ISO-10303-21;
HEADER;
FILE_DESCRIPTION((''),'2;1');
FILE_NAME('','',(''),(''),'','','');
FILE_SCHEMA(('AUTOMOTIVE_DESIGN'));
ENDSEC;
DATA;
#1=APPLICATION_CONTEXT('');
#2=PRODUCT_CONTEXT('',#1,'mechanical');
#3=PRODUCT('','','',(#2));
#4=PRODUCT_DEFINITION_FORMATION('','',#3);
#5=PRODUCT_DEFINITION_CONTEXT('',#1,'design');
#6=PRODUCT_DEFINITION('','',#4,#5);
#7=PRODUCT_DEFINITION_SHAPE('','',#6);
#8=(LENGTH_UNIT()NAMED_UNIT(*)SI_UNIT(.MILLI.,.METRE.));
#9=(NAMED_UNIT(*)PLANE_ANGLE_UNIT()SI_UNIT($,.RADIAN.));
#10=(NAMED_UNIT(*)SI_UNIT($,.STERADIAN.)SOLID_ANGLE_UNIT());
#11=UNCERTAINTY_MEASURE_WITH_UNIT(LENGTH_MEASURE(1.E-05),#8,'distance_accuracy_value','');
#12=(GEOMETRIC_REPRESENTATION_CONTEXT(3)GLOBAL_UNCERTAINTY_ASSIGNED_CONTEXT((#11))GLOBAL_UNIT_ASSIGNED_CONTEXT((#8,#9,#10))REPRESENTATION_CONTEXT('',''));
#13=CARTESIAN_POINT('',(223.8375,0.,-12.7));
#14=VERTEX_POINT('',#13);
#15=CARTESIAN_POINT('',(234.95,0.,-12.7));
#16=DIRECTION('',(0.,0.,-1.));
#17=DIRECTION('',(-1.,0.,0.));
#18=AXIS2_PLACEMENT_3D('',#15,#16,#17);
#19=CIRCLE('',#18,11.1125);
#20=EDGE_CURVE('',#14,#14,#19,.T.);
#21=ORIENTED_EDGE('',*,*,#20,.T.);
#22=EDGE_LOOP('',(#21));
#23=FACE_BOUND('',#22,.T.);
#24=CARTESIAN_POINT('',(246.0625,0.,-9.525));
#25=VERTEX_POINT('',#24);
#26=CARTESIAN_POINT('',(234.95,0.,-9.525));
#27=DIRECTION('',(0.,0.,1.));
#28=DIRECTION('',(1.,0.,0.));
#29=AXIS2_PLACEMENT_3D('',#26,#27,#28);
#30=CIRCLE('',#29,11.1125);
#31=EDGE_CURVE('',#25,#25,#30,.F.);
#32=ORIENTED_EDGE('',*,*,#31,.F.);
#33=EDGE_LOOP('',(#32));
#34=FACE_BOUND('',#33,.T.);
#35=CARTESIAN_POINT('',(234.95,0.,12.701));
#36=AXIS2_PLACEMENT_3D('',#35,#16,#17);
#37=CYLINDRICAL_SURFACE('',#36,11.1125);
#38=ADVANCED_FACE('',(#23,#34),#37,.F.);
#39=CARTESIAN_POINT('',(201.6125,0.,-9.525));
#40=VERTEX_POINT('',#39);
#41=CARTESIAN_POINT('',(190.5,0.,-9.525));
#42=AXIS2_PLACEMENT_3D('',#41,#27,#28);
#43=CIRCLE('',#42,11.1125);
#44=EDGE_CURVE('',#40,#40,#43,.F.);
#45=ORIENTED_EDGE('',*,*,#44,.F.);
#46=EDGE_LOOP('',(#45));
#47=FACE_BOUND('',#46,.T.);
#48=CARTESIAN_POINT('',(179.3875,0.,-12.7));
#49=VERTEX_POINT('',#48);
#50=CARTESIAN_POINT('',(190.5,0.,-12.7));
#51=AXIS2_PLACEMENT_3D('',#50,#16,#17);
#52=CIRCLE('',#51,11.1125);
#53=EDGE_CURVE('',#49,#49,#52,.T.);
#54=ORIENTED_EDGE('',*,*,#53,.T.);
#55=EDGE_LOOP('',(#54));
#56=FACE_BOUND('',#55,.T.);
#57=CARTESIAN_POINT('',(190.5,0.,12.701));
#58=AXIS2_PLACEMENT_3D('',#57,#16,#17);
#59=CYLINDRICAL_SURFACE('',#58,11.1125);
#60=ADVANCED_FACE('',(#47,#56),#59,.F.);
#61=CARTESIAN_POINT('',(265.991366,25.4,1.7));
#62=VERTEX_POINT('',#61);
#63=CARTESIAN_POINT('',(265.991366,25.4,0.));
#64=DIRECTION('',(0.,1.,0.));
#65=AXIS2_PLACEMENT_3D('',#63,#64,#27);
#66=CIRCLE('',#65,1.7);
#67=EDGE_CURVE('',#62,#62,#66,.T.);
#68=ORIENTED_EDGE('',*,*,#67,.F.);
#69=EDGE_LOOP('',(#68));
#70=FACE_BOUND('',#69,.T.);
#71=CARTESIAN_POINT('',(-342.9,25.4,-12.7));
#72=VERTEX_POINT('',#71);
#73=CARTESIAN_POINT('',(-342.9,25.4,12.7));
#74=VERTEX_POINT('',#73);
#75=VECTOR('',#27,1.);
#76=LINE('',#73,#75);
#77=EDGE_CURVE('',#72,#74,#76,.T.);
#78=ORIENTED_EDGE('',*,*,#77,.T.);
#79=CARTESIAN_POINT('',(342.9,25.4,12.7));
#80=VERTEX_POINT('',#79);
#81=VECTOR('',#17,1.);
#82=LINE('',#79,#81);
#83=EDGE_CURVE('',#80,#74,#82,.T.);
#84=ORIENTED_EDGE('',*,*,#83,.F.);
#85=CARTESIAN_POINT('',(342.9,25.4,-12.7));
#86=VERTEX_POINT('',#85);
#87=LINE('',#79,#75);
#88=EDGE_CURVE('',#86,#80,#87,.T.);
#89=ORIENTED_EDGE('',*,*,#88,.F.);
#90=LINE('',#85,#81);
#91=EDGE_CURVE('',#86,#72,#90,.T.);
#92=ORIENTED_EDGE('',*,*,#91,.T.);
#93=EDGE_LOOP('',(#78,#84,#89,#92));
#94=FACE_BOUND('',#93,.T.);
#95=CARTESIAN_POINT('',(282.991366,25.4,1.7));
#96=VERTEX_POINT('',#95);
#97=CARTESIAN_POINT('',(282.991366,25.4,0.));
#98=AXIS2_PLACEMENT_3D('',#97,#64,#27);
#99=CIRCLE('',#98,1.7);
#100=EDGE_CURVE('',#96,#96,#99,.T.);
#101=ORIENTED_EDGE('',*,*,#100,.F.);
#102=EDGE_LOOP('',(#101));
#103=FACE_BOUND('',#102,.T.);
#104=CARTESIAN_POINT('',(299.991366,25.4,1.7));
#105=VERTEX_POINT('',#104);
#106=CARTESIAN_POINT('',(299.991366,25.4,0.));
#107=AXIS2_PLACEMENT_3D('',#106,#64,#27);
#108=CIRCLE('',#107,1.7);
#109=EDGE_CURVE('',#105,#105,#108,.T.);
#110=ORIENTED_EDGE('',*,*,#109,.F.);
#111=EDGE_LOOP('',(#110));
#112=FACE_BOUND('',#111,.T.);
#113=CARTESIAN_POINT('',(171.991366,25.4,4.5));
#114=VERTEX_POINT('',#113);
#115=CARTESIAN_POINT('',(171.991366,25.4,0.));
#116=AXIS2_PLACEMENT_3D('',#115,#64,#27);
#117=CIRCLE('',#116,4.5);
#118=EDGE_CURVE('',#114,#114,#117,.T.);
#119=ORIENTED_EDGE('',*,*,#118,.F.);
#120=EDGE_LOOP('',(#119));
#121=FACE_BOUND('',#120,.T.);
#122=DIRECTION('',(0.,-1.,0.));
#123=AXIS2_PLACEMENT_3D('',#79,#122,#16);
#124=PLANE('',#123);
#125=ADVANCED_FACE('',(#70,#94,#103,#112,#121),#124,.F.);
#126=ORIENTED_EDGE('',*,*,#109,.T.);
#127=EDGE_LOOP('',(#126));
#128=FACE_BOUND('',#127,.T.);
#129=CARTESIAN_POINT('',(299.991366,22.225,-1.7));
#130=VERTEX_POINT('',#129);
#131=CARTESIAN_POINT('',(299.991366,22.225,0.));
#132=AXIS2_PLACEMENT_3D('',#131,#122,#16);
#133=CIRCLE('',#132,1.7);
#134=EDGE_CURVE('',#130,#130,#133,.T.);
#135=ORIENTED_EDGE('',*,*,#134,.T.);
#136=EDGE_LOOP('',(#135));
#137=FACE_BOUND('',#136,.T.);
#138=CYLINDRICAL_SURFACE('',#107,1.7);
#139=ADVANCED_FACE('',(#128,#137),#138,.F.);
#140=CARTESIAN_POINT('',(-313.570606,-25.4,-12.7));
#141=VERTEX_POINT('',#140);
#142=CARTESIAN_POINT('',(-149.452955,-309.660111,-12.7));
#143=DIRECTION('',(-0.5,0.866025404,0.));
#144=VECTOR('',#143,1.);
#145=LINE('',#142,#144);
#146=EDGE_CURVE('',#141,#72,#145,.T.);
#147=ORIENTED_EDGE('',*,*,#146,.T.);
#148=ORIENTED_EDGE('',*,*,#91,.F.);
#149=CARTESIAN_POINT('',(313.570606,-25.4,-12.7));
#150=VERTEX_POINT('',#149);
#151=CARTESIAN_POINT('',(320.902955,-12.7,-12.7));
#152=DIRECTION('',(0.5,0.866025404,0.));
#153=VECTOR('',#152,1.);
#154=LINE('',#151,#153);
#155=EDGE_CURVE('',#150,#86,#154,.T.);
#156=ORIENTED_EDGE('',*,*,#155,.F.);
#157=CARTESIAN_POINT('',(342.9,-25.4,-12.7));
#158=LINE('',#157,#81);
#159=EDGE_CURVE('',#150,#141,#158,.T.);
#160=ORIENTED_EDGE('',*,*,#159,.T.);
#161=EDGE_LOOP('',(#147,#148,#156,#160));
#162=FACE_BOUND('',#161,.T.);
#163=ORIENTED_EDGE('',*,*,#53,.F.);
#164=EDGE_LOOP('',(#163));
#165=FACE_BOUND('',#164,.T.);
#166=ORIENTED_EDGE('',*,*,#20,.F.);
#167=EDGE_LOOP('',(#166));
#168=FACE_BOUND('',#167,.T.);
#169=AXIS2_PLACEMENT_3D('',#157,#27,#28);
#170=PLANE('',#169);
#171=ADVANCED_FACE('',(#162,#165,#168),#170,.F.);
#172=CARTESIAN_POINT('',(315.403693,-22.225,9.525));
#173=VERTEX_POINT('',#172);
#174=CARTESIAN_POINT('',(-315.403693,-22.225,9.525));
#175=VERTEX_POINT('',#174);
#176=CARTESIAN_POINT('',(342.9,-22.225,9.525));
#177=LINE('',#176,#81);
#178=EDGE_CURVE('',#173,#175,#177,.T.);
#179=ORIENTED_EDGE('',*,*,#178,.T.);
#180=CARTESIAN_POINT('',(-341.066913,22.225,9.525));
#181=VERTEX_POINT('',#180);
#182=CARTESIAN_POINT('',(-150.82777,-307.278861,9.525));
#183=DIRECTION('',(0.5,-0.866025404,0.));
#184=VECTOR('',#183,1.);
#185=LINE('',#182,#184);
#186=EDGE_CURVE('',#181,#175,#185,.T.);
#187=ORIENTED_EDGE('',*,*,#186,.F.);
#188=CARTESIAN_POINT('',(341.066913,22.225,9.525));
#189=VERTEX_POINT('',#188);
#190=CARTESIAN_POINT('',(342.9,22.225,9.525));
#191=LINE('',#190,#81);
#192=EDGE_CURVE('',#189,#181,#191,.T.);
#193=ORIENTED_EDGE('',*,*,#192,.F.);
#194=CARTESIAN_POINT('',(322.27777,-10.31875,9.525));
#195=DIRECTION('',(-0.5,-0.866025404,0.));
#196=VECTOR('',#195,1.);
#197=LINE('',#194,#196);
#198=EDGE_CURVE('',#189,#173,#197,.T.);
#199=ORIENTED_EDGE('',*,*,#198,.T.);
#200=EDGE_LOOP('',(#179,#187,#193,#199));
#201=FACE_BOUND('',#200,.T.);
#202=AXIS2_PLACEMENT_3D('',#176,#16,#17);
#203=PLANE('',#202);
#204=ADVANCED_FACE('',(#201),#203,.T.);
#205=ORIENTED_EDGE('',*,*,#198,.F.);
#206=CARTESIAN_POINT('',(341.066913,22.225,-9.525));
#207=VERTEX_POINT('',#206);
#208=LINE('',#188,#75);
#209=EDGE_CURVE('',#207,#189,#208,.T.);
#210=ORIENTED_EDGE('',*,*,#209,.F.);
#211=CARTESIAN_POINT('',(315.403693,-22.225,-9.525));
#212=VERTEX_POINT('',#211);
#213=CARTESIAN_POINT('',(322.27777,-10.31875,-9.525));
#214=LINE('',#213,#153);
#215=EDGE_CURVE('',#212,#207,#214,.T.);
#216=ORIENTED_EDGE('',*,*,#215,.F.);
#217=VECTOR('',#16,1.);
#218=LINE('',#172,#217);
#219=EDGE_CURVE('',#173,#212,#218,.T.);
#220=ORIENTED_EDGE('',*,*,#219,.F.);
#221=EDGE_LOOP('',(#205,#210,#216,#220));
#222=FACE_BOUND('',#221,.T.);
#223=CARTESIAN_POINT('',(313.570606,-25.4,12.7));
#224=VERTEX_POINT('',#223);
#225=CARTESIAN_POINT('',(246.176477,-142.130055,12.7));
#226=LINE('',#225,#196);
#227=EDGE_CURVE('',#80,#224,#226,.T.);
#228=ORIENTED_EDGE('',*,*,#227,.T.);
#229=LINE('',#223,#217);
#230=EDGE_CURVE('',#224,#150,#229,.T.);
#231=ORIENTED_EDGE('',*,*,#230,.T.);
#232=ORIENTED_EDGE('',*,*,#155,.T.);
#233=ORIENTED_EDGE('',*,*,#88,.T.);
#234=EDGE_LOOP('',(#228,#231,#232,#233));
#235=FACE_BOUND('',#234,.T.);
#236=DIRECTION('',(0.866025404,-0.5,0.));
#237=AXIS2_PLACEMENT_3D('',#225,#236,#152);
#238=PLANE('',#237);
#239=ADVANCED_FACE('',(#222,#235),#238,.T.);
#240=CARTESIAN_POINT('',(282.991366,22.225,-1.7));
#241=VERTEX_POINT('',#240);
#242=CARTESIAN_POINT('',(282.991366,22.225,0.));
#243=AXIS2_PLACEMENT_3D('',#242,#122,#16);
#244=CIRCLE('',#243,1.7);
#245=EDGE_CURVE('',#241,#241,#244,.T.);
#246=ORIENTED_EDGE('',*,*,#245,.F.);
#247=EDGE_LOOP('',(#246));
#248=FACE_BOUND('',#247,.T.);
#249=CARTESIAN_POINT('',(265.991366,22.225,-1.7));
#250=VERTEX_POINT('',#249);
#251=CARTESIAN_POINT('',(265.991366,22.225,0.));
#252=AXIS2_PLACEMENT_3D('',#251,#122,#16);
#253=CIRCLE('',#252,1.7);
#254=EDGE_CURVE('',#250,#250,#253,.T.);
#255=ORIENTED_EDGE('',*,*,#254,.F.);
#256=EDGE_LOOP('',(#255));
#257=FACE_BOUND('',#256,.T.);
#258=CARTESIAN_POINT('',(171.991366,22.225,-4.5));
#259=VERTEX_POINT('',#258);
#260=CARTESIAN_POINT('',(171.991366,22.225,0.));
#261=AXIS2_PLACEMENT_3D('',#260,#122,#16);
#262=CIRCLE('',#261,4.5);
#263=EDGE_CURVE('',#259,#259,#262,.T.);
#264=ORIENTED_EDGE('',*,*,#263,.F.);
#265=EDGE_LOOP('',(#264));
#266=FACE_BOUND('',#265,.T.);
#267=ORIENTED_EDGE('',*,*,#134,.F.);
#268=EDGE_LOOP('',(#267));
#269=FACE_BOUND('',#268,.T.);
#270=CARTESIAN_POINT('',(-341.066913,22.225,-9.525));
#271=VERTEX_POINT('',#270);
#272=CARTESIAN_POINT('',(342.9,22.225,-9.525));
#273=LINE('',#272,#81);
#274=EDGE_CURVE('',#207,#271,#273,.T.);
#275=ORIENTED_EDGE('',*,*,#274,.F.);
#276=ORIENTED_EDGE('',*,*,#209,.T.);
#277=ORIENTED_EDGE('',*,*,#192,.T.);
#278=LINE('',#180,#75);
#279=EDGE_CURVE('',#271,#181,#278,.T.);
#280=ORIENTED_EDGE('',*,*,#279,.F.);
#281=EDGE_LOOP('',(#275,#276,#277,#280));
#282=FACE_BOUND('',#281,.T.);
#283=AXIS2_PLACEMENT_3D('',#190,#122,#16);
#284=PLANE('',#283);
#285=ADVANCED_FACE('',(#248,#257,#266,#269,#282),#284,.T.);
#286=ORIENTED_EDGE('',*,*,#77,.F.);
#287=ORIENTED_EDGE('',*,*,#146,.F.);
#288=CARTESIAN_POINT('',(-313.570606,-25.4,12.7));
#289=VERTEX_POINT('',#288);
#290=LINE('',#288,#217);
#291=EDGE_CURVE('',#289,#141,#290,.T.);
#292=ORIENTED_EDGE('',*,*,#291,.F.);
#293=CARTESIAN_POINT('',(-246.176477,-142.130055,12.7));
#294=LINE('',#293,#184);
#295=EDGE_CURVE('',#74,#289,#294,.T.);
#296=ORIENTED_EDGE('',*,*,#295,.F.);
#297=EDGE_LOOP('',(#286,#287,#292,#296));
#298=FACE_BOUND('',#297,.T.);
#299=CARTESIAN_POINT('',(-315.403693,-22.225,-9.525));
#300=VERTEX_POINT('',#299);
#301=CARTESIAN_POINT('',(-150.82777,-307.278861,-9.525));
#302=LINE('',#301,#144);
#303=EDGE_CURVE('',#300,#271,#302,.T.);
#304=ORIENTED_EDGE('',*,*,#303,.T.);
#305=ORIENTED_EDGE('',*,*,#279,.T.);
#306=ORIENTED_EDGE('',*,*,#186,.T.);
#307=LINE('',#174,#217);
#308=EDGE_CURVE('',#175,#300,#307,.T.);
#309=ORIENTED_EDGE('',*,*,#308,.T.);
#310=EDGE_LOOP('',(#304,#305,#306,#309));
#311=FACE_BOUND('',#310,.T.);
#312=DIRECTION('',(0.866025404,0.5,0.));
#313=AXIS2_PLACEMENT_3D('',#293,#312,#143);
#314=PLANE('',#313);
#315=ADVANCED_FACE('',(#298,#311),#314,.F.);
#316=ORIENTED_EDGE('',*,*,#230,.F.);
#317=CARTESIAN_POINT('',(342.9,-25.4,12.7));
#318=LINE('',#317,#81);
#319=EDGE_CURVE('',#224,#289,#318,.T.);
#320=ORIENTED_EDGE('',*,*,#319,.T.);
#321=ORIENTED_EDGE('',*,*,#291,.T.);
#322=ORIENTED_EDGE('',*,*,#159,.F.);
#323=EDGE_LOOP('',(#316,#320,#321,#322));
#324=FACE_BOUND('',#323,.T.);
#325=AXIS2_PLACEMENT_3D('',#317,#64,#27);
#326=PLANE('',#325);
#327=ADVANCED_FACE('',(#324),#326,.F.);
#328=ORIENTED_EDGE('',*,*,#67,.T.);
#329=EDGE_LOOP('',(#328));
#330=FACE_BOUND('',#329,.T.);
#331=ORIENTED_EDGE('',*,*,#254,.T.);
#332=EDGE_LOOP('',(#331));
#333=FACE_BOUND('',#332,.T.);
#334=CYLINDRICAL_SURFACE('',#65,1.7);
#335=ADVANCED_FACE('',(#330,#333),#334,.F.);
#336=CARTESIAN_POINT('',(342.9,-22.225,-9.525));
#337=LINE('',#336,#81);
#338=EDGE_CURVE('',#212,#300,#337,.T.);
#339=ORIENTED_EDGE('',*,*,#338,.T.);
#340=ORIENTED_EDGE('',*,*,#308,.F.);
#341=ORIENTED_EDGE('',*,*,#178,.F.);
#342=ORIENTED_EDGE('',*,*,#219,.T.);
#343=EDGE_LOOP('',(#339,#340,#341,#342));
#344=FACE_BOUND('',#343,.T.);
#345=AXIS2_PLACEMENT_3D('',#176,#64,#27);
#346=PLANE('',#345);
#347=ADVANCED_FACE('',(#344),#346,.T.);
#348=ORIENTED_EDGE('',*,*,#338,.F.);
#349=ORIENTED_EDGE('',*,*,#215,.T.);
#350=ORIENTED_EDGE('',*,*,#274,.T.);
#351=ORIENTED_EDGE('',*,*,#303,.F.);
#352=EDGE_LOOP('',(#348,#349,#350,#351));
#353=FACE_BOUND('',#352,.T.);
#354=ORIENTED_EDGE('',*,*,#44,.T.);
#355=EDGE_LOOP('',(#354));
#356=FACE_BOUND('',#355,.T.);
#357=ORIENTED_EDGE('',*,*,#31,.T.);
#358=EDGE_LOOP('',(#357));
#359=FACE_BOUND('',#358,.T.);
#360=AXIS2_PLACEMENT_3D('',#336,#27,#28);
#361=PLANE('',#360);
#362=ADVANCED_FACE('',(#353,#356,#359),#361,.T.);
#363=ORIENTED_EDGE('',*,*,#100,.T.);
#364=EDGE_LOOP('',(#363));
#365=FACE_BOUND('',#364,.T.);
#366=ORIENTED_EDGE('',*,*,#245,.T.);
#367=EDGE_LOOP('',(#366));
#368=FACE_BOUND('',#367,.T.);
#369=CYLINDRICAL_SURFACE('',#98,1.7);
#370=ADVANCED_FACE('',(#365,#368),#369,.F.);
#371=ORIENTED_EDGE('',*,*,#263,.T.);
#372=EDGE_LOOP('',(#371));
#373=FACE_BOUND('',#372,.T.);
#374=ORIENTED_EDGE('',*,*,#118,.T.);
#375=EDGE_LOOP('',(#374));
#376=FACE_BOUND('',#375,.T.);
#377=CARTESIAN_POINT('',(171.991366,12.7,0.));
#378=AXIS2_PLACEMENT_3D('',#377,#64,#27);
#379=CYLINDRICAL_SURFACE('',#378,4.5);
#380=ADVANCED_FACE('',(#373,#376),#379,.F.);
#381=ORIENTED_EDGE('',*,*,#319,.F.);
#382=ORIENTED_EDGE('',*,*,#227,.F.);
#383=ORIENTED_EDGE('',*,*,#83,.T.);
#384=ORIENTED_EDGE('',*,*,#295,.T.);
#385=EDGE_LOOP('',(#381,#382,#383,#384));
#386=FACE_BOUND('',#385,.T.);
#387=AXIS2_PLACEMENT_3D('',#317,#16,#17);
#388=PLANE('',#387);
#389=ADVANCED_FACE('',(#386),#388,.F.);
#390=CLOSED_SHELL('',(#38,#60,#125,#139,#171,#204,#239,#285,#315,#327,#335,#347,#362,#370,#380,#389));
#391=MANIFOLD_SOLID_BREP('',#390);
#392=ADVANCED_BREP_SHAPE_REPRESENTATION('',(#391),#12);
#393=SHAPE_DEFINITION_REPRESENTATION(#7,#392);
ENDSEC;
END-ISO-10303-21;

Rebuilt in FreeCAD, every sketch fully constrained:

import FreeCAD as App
import Part
import Sketcher
from FreeCAD import Vector
Q = App.Units.Quantity


def add_polygon(sketch, points):
    """Adds a closed chain of lines whose ends are joined by coincident constraints."""
    first, n = sketch.GeometryCount, len(points)
    for a, b in zip(points, points[1:] + points[:1]):
        sketch.addGeometry(Part.LineSegment(App.Vector(*a, 0), App.Vector(*b, 0)), False)
    for i in range(n):
        sketch.addConstraint(Sketcher.Constraint("Coincident", first + i, 2, first + (i + 1) % n, 1))

doc = App.newDocument("Part")
body = doc.addObject("PartDesign::Body", "Body")

# Sketch on YZ plane
sketch1 = body.newObject("Sketcher::SketchObject", "Sketch")
sketch1.AttachmentSupport = (doc.getObject("YZ_Plane"), [""])
sketch1.MapMode = "FlatFace"
add_polygon(sketch1, [(25, 13), (-25, 13), (-25, -13), (25, -13)])  # lines 0-3
add_polygon(sketch1, [(-22, -10), (-22, 10), (22, 10), (22, -10)])  # lines 4-7
sketch1.addConstraint(Sketcher.Constraint("Horizontal", 0))
sketch1.addConstraint(Sketcher.Constraint("Vertical", 1))
sketch1.addConstraint(Sketcher.Constraint("Horizontal", 2))
sketch1.addConstraint(Sketcher.Constraint("Vertical", 3))
sketch1.addConstraint(Sketcher.Constraint("Vertical", 4))
sketch1.addConstraint(Sketcher.Constraint("Horizontal", 5))
sketch1.addConstraint(Sketcher.Constraint("Vertical", 6))
sketch1.addConstraint(Sketcher.Constraint("Horizontal", 7))
sketch1.addConstraint(Sketcher.Constraint("Symmetric", 0, 2, 2, 2, -1, 1))
sketch1.addConstraint(Sketcher.Constraint("Symmetric", 4, 2, 6, 2, -1, 1))
sketch1.addConstraint(Sketcher.Constraint("DistanceX", 0, 2, 0, 1, Q("2 in")))
sketch1.addConstraint(Sketcher.Constraint("DistanceY", 1, 2, 1, 1, Q("1 in")))
sketch1.addConstraint(Sketcher.Constraint("DistanceX", 5, 1, 5, 2, Q("1.75 in")))
sketch1.addConstraint(Sketcher.Constraint("DistanceY", 4, 1, 4, 2, Q("0.75 in")))
pad1 = body.newObject("PartDesign::Pad", "Pad")
pad1.Profile = sketch1
pad1.Length = Q("27 in")
pad1.Midplane = True

# Sketch on XY plane
sketch2 = body.newObject("Sketcher::SketchObject", "Sketch001")
sketch2.AttachmentSupport = (doc.getObject("XY_Plane"), [""])
sketch2.MapMode = "FlatFace"
sketch2.AttachmentOffset = App.Placement(Vector(0, 0, -0.5 * 25.4), App.Rotation())
add_polygon(sketch2, [(-343, -25), (-343, 25), (-314, -25)])  # lines 0-2
add_polygon(sketch2, [(343, -25), (314, -25), (343, 25)])  # lines 3-5
sketch2.addConstraint(Sketcher.Constraint("Vertical", 0))
sketch2.addConstraint(Sketcher.Constraint("Horizontal", 2))
sketch2.addConstraint(Sketcher.Constraint("Horizontal", 3))
sketch2.addConstraint(Sketcher.Constraint("Vertical", 5))
sketch2.addConstraint(Sketcher.Constraint("Symmetric", 2, 2, 4, 2, -1, 1))
sketch2.addConstraint(Sketcher.Constraint("Symmetric", 1, 2, 3, 2, -2))
sketch2.addConstraint(Sketcher.Constraint("Horizontal", 0, 2, 4, 2))
sketch2.addConstraint(Sketcher.Constraint("DistanceY", 0, 1, 0, 2, Q("2 in")))
sketch2.addConstraint(Sketcher.Constraint("Angle", 1, Q("-60 deg")))
sketch2.addConstraint(Sketcher.Constraint("DistanceX", 0, 2, 4, 2, Q("27 in")))
pocket1 = body.newObject("PartDesign::Pocket", "Pocket")
pocket1.Profile = sketch2
pocket1.Type = "ThroughAll"
pocket1.Midplane = True

# Sketch on XY plane
sketch3 = body.newObject("Sketcher::SketchObject", "Sketch002")
sketch3.AttachmentSupport = (doc.getObject("XY_Plane"), [""])
sketch3.MapMode = "FlatFace"
sketch3.AttachmentOffset = App.Placement(Vector(0, 0, -0.5 * 25.4), App.Rotation())
sketch3.addGeometry(Part.Circle(Vector(235, 0, 0), Vector(0, 0, 1), 11), False)
sketch3.addConstraint(Sketcher.Constraint("PointOnObject", 0, 3, -1))
sketch3.addConstraint(Sketcher.Constraint("Diameter", 0, Q("0.875 in")))
sketch3.addConstraint(Sketcher.Constraint("DistanceX", -1, 1, 0, 3, Q("9.25 in")))
pocket2 = body.newObject("PartDesign::Pocket", "Pocket001")
pocket2.Profile = sketch3
pocket2.Type = "UpToFirst"
pocket2.Reversed = True

# Sketch on XY plane
sketch4 = body.newObject("Sketcher::SketchObject", "Sketch003")
sketch4.AttachmentSupport = (doc.getObject("XY_Plane"), [""])
sketch4.MapMode = "FlatFace"
sketch4.AttachmentOffset = App.Placement(Vector(0, 0, -0.5 * 25.4), App.Rotation())
sketch4.addGeometry(Part.Circle(Vector(190, 0, 0), Vector(0, 0, 1), 11), False)
sketch4.addConstraint(Sketcher.Constraint("PointOnObject", 0, 3, -1))
sketch4.addConstraint(Sketcher.Constraint("Diameter", 0, Q("0.875 in")))
sketch4.addConstraint(Sketcher.Constraint("DistanceX", -1, 1, 0, 3, Q("7.5 in")))
pocket3 = body.newObject("PartDesign::Pocket", "Pocket002")
pocket3.Profile = sketch4
pocket3.Type = "UpToFirst"
pocket3.Reversed = True

# Sketch on XZ plane
sketch5 = body.newObject("Sketcher::SketchObject", "Sketch004")
sketch5.AttachmentSupport = (doc.getObject("XZ_Plane"), [""])
sketch5.MapMode = "FlatFace"
sketch5.AttachmentOffset = App.Placement(Vector(0, 0, -1 * 25.4), App.Rotation())
sketch5.addGeometry(Part.Circle(Vector(300, 0, 0), Vector(0, 0, 1), 1.7), False)
sketch5.addGeometry(Part.Circle(Vector(283, 0, 0), Vector(0, 0, 1), 1.7), False)
sketch5.addGeometry(Part.Circle(Vector(266, 0, 0), Vector(0, 0, 1), 1.7), False)
sketch5.addConstraint(Sketcher.Constraint("Equal", 0, 1))
sketch5.addConstraint(Sketcher.Constraint("Equal", 1, 2))
sketch5.addConstraint(Sketcher.Constraint("PointOnObject", 0, 3, -1))
sketch5.addConstraint(Sketcher.Constraint("PointOnObject", 1, 3, -1))
sketch5.addConstraint(Sketcher.Constraint("PointOnObject", 2, 3, -1))
sketch5.addConstraint(Sketcher.Constraint("Diameter", 0, 3.4))
sketch5.addConstraint(Sketcher.Constraint("DistanceX", 1, 3, 0, 3, 17.0))
sketch5.addConstraint(Sketcher.Constraint("DistanceX", 2, 3, 1, 3, 17.0))
sketch5.addConstraint(Sketcher.Constraint("DistanceX", -1, 1, 0, 3, 299.991366))
doc.recompute()
hole = body.newObject("PartDesign::Hole", "Hole")
hole.Profile = sketch5
hole.ThreadType = "None"
hole.Diameter = 3.4
hole.DepthType = "Dimension"
hole.Depth = Q("0.125 in")
hole.DrillPoint = "Flat"
hole.Reversed = True

# Sketch on XZ plane
sketch6 = body.newObject("Sketcher::SketchObject", "Sketch005")
sketch6.AttachmentSupport = (doc.getObject("XZ_Plane"), [""])
sketch6.MapMode = "FlatFace"
sketch6.AttachmentOffset = App.Placement(Vector(0, 0, -1 * 25.4), App.Rotation())
sketch6.addGeometry(Part.Circle(Vector(172, 0, 0), Vector(0, 0, 1), 4.5), False)
sketch6.addConstraint(Sketcher.Constraint("PointOnObject", 0, 3, -1))
sketch6.addConstraint(Sketcher.Constraint("Diameter", 0, 9.0))
sketch6.addConstraint(Sketcher.Constraint("DistanceX", -1, 1, 0, 3, 171.991366))
pocket4 = body.newObject("PartDesign::Pocket", "Pocket003")
pocket4.Profile = sketch6
pocket4.Length = Q("0.5 in")
pocket4.Reversed = True

doc.recompute()
